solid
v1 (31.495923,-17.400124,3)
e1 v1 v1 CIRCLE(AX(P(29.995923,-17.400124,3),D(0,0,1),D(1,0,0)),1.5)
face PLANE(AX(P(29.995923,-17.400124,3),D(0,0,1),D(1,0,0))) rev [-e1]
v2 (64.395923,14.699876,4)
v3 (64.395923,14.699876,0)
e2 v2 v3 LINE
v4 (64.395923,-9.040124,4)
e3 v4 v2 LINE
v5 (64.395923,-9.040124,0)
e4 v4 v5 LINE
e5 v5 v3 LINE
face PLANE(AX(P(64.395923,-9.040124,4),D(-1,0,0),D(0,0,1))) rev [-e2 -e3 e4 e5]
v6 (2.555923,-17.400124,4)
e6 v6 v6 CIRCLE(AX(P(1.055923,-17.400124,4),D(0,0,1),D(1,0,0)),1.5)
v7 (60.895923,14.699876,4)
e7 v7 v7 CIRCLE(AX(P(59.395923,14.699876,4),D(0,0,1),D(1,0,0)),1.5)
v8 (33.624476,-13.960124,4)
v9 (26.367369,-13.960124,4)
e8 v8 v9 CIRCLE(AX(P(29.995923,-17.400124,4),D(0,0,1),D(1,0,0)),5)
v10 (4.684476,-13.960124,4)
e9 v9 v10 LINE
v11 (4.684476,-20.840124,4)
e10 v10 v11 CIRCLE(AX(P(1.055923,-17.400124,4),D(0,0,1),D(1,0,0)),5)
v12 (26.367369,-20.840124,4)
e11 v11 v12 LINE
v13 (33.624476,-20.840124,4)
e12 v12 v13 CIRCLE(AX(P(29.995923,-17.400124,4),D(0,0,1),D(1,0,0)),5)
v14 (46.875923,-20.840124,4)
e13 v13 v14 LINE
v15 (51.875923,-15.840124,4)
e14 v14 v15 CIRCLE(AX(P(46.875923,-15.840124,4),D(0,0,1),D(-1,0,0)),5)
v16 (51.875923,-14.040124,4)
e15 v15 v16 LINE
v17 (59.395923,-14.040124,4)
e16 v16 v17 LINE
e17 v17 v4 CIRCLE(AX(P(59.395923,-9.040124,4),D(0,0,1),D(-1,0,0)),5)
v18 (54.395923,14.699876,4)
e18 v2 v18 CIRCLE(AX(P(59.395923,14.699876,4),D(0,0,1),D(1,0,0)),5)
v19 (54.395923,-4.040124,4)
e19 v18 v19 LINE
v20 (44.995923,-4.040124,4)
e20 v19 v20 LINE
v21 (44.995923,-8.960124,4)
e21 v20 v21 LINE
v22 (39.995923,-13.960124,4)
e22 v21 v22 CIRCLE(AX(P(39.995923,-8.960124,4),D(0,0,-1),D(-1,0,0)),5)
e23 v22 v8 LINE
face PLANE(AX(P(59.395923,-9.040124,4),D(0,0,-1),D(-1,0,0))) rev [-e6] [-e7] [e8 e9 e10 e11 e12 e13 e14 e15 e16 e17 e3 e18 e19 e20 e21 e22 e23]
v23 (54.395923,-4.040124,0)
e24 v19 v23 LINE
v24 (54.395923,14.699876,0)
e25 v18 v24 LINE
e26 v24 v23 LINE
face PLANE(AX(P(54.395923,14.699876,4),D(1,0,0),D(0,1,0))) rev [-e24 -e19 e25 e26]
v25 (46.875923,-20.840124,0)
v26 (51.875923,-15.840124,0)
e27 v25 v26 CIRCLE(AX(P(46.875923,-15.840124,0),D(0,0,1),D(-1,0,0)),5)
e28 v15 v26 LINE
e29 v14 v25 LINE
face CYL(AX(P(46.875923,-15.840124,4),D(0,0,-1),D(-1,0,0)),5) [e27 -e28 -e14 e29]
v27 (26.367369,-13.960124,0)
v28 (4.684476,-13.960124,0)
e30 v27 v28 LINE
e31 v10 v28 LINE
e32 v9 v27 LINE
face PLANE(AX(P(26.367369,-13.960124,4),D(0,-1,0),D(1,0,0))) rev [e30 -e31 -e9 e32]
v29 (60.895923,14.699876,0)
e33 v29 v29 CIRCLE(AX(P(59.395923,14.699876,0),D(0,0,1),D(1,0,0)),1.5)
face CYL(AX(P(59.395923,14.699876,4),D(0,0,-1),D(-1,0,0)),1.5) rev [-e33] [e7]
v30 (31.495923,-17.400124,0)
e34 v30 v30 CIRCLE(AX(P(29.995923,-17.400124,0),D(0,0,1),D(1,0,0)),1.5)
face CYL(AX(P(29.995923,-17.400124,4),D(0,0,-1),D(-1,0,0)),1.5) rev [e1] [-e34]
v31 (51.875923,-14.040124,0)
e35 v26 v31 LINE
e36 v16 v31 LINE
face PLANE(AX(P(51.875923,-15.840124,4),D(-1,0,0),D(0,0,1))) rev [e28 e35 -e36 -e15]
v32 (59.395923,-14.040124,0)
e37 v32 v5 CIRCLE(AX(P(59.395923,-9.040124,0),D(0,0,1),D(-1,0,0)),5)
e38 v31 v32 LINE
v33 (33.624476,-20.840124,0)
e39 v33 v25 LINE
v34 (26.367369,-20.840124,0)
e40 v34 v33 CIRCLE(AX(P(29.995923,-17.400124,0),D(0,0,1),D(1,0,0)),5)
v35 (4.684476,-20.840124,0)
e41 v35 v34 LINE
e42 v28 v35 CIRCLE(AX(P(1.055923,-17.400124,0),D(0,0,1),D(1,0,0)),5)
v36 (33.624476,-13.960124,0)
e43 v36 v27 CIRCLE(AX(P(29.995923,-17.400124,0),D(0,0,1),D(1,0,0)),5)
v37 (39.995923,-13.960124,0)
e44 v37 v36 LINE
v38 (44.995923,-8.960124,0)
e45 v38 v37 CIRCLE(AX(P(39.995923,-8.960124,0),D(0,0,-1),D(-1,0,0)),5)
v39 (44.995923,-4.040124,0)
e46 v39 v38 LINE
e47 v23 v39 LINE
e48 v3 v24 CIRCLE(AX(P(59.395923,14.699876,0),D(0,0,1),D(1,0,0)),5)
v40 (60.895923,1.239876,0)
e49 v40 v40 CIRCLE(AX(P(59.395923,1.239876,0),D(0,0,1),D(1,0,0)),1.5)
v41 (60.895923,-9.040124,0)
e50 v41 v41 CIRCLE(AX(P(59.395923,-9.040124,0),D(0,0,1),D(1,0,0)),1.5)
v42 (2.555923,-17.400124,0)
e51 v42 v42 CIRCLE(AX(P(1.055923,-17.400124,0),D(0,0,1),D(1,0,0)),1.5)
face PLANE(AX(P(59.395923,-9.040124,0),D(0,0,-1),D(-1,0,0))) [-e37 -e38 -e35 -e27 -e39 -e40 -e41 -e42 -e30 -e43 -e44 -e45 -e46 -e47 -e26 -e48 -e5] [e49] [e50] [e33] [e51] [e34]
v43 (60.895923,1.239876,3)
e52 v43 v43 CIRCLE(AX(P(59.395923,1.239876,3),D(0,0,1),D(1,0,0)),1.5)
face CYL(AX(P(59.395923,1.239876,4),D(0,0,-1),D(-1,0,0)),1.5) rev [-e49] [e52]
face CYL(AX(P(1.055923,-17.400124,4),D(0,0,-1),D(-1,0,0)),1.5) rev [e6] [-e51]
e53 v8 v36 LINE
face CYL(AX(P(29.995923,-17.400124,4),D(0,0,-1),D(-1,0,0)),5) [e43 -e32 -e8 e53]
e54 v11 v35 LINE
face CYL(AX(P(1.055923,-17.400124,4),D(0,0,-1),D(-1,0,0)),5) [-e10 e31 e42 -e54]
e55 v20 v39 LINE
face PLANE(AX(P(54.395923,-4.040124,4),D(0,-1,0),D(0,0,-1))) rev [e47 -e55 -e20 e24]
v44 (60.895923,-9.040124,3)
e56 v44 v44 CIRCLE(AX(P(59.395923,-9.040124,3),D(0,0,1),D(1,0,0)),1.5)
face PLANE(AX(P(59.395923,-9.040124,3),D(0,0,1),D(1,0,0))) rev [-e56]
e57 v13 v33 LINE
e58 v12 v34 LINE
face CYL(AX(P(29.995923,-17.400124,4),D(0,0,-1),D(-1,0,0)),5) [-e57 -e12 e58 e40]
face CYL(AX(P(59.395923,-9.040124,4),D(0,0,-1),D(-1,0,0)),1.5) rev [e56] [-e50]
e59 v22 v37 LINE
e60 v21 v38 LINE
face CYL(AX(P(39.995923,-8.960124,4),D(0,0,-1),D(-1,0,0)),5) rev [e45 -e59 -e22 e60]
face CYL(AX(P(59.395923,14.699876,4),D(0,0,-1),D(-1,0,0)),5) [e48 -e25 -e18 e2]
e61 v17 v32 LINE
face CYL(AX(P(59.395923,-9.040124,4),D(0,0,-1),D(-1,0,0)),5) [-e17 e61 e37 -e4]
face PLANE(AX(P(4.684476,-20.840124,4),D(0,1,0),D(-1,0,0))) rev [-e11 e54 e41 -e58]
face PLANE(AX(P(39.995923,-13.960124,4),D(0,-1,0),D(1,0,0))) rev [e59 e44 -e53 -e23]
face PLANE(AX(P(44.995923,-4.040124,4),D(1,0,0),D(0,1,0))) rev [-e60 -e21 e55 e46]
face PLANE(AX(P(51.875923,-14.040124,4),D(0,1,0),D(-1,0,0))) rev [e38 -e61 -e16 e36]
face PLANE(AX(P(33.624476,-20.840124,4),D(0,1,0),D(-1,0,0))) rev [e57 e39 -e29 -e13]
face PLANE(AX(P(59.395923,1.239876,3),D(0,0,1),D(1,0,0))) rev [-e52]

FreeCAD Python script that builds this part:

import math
import FreeCAD as App
import Part
import Sketcher

V = App.Vector

doc = App.newDocument("Part")
body = doc.addObject("PartDesign::Body", "Body")

sketch1 = body.newObject("Sketcher::SketchObject", "Sketch")
sketch1.AttachmentSupport = (doc.getObject("XY_Plane"), [""])
sketch1.MapMode = "FlatFace"
sketch1.addGeometry(Part.LineSegment(V(51.9, -14, 0), V(59.4, -14, 0)), False)
sketch1.addGeometry(Part.ArcOfCircle(Part.Circle(V(59.4, -9, 0), V(0, 0, 1), 5), math.radians(-90), math.radians(0)), False)
sketch1.addGeometry(Part.LineSegment(V(64.4, -9, 0), V(64.4, 14.7, 0)), False)
sketch1.addGeometry(Part.ArcOfCircle(Part.Circle(V(59.4, 14.7, 0), V(0, 0, 1), 5), math.radians(0), math.radians(180)), False)
sketch1.addGeometry(Part.LineSegment(V(54.4, 14.7, 0), V(54.4, -4, 0)), False)
sketch1.addGeometry(Part.LineSegment(V(54.4, -4, 0), V(45, -4, 0)), False)
sketch1.addGeometry(Part.LineSegment(V(45, -4, 0), V(45, -9, 0)), False)
sketch1.addGeometry(Part.ArcOfCircle(Part.Circle(V(40, -9, 0), V(0, 0, 1), 5), math.radians(-90), math.radians(0)), False)
sketch1.addGeometry(Part.LineSegment(V(40, -14, 0), V(33.6, -14, 0)), False)
sketch1.addGeometry(Part.ArcOfCircle(Part.Circle(V(30, -17.4, 0), V(0, 0, 1), 5), math.radians(43), math.radians(137)), False)
sketch1.addGeometry(Part.LineSegment(V(26.4, -14, 0), V(4.7, -14, 0)), False)
sketch1.addGeometry(Part.ArcOfCircle(Part.Circle(V(1.1, -17.4, 0), V(0, 0, 1), 5), math.radians(43), math.radians(317)), False)
sketch1.addGeometry(Part.LineSegment(V(4.7, -20.8, 0), V(26.4, -20.8, 0)), False)
sketch1.addGeometry(Part.ArcOfCircle(Part.Circle(V(30, -17.4, 0), V(0, 0, 1), 5), math.radians(-137), math.radians(-43)), False)
sketch1.addGeometry(Part.LineSegment(V(33.6, -20.8, 0), V(46.9, -20.8, 0)), False)
sketch1.addGeometry(Part.ArcOfCircle(Part.Circle(V(46.9, -15.8, 0), V(0, 0, 1), 5), math.radians(-90), math.radians(0)), False)
sketch1.addGeometry(Part.LineSegment(V(51.9, -15.8, 0), V(51.9, -14, 0)), False)
sketch1.addGeometry(Part.Circle(V(1.1, -17.4, 0), V(0, 0, 1), 1.5), False)
sketch1.addGeometry(Part.Circle(V(30, -17.4, 0), V(0, 0, 1), 1.5), False)
sketch1.addGeometry(Part.Circle(V(59.4, -9, 0), V(0, 0, 1), 1.5), False)
sketch1.addGeometry(Part.Circle(V(59.4, 1.2, 0), V(0, 0, 1), 1.5), False)
sketch1.addGeometry(Part.Circle(V(59.4, 14.7, 0), V(0, 0, 1), 1.5), False)
sketch1.addConstraint(Sketcher.Constraint("Tangent", 0, 2, 1, 1))
sketch1.addConstraint(Sketcher.Constraint("Tangent", 1, 2, 2, 1))
sketch1.addConstraint(Sketcher.Constraint("Tangent", 2, 2, 3, 1))
sketch1.addConstraint(Sketcher.Constraint("Tangent", 3, 2, 4, 1))
sketch1.addConstraint(Sketcher.Constraint("Coincident", 4, 2, 5, 1))
sketch1.addConstraint(Sketcher.Constraint("Coincident", 5, 2, 6, 1))
sketch1.addConstraint(Sketcher.Constraint("Tangent", 6, 2, 7, 2))
sketch1.addConstraint(Sketcher.Constraint("Tangent", 7, 1, 8, 1))
sketch1.addConstraint(Sketcher.Constraint("Coincident", 8, 2, 9, 1))
sketch1.addConstraint(Sketcher.Constraint("Coincident", 9, 2, 10, 1))
sketch1.addConstraint(Sketcher.Constraint("Coincident", 10, 2, 11, 1))
sketch1.addConstraint(Sketcher.Constraint("Coincident", 11, 2, 12, 1))
sketch1.addConstraint(Sketcher.Constraint("Coincident", 12, 2, 13, 1))
sketch1.addConstraint(Sketcher.Constraint("Coincident", 13, 2, 14, 1))
sketch1.addConstraint(Sketcher.Constraint("Tangent", 14, 2, 15, 1))
sketch1.addConstraint(Sketcher.Constraint("Tangent", 15, 2, 16, 1))
sketch1.addConstraint(Sketcher.Constraint("Coincident", 16, 2, 0, 1))
sketch1.addConstraint(Sketcher.Constraint("Horizontal", 0))
sketch1.addConstraint(Sketcher.Constraint("Vertical", 2))
sketch1.addConstraint(Sketcher.Constraint("Vertical", 4))
sketch1.addConstraint(Sketcher.Constraint("Horizontal", 5))
sketch1.addConstraint(Sketcher.Constraint("Vertical", 6))
sketch1.addConstraint(Sketcher.Constraint("Horizontal", 8))
sketch1.addConstraint(Sketcher.Constraint("Horizontal", 10))
sketch1.addConstraint(Sketcher.Constraint("Horizontal", 12))
sketch1.addConstraint(Sketcher.Constraint("Horizontal", 14))
sketch1.addConstraint(Sketcher.Constraint("Vertical", 16))
sketch1.addConstraint(Sketcher.Constraint("Coincident", 13, 3, 9, 3))
sketch1.addConstraint(Sketcher.Constraint("Coincident", 17, 3, 11, 3))
sketch1.addConstraint(Sketcher.Constraint("Coincident", 18, 3, 9, 3))
sketch1.addConstraint(Sketcher.Constraint("Coincident", 19, 3, 1, 3))
sketch1.addConstraint(Sketcher.Constraint("Coincident", 21, 3, 3, 3))
sketch1.addConstraint(Sketcher.Constraint("Equal", 1, 3))
sketch1.addConstraint(Sketcher.Constraint("Equal", 3, 7))
sketch1.addConstraint(Sketcher.Constraint("Equal", 7, 9))
sketch1.addConstraint(Sketcher.Constraint("Equal", 9, 11))
sketch1.addConstraint(Sketcher.Constraint("Equal", 11, 13))
sketch1.addConstraint(Sketcher.Constraint("Equal", 13, 15))
sketch1.addConstraint(Sketcher.Constraint("Equal", 17, 18))
sketch1.addConstraint(Sketcher.Constraint("Equal", 18, 19))
sketch1.addConstraint(Sketcher.Constraint("Equal", 19, 20))
sketch1.addConstraint(Sketcher.Constraint("Equal", 20, 21))
sketch1.addConstraint(Sketcher.Constraint("Horizontal", 9, 3, 11, 3))
sketch1.addConstraint(Sketcher.Constraint("Horizontal", 8, 2, 9, 2))
sketch1.addConstraint(Sketcher.Constraint("Horizontal", 12, 2, 13, 2))
sketch1.addConstraint(Sketcher.Constraint("Vertical", 19, 3, 20, 3))
sketch1.addConstraint(Sketcher.Constraint("Vertical", 10, 2, 11, 2))
sketch1.addConstraint(Sketcher.Constraint("Diameter", 17, 3.0))
sketch1.addConstraint(Sketcher.Constraint("Radius", 1, 5.0))
sketch1.addConstraint(Sketcher.Constraint("DistanceX", 5, 2, 5, 1, 9.4))
sketch1.addConstraint(Sketcher.Constraint("DistanceY", 16, 1, 16, 2, 1.8))
sketch1.addConstraint(Sketcher.Constraint("DistanceX", 9, 3, 7, 3, 10.0))
sketch1.addConstraint(Sketcher.Constraint("DistanceY", 1, 3, 4, 2, 5.0))
sketch1.addConstraint(Sketcher.Constraint("DistanceX", 0, 1, 0, 2, 7.52))
sketch1.addConstraint(Sketcher.Constraint("DistanceY", 2, 1, 2, 2, 23.74))
sketch1.addConstraint(Sketcher.Constraint("DistanceY", 6, 2, 6, 1, 4.92))
sketch1.addConstraint(Sketcher.Constraint("DistanceY", 7, 3, 20, 3, 10.2))
sketch1.addConstraint(Sketcher.Constraint("DistanceX", 11, 3, 9, 3, 28.94))
sketch1.addConstraint(Sketcher.Constraint("DistanceX", -1, 1, 9, 2, 26.367369))
sketch1.addConstraint(Sketcher.Constraint("DistanceY", 1, 3, -1, 1, 9.040124))
pad1 = body.newObject("PartDesign::Pad", "Pad")
pad1.Profile = sketch1
pad1.Length = 4

sketch2 = body.newObject("Sketcher::SketchObject", "Sketch001")
sketch2.AttachmentSupport = (doc.getObject("XY_Plane"), [""])
sketch2.MapMode = "FlatFace"
sketch2.AttachmentOffset = App.Placement(V(0, 0, 3), App.Rotation())
sketch2.addGeometry(Part.Circle(V(59.4, 1.2, 0), V(0, 0, 1), 1.5), False)
sketch2.addGeometry(Part.Circle(V(59.4, -9, 0), V(0, 0, 1), 1.5), False)
sketch2.addGeometry(Part.Circle(V(30, -17.4, 0), V(0, 0, 1), 1.5), False)
sketch2.addConstraint(Sketcher.Constraint("Equal", 0, 1))
sketch2.addConstraint(Sketcher.Constraint("Equal", 1, 2))
sketch2.addConstraint(Sketcher.Constraint("Vertical", 0, 3, 1, 3))
sketch2.addConstraint(Sketcher.Constraint("Diameter", 0, 3.0))
sketch2.addConstraint(Sketcher.Constraint("DistanceX", 2, 3, 1, 3, 29.4))
sketch2.addConstraint(Sketcher.Constraint("DistanceY", 1, 3, 0, 3, 10.28))
sketch2.addConstraint(Sketcher.Constraint("DistanceY", 2, 3, 1, 3, 8.36))
sketch2.addConstraint(Sketcher.Constraint("DistanceX", -1, 1, 0, 3, 59.395923))
sketch2.addConstraint(Sketcher.Constraint("DistanceY", -1, 1, 0, 3, 1.239876))
pad2 = body.newObject("PartDesign::Pad", "Pad001")
pad2.Profile = sketch2
pad2.Length = 1

doc.recompute()
